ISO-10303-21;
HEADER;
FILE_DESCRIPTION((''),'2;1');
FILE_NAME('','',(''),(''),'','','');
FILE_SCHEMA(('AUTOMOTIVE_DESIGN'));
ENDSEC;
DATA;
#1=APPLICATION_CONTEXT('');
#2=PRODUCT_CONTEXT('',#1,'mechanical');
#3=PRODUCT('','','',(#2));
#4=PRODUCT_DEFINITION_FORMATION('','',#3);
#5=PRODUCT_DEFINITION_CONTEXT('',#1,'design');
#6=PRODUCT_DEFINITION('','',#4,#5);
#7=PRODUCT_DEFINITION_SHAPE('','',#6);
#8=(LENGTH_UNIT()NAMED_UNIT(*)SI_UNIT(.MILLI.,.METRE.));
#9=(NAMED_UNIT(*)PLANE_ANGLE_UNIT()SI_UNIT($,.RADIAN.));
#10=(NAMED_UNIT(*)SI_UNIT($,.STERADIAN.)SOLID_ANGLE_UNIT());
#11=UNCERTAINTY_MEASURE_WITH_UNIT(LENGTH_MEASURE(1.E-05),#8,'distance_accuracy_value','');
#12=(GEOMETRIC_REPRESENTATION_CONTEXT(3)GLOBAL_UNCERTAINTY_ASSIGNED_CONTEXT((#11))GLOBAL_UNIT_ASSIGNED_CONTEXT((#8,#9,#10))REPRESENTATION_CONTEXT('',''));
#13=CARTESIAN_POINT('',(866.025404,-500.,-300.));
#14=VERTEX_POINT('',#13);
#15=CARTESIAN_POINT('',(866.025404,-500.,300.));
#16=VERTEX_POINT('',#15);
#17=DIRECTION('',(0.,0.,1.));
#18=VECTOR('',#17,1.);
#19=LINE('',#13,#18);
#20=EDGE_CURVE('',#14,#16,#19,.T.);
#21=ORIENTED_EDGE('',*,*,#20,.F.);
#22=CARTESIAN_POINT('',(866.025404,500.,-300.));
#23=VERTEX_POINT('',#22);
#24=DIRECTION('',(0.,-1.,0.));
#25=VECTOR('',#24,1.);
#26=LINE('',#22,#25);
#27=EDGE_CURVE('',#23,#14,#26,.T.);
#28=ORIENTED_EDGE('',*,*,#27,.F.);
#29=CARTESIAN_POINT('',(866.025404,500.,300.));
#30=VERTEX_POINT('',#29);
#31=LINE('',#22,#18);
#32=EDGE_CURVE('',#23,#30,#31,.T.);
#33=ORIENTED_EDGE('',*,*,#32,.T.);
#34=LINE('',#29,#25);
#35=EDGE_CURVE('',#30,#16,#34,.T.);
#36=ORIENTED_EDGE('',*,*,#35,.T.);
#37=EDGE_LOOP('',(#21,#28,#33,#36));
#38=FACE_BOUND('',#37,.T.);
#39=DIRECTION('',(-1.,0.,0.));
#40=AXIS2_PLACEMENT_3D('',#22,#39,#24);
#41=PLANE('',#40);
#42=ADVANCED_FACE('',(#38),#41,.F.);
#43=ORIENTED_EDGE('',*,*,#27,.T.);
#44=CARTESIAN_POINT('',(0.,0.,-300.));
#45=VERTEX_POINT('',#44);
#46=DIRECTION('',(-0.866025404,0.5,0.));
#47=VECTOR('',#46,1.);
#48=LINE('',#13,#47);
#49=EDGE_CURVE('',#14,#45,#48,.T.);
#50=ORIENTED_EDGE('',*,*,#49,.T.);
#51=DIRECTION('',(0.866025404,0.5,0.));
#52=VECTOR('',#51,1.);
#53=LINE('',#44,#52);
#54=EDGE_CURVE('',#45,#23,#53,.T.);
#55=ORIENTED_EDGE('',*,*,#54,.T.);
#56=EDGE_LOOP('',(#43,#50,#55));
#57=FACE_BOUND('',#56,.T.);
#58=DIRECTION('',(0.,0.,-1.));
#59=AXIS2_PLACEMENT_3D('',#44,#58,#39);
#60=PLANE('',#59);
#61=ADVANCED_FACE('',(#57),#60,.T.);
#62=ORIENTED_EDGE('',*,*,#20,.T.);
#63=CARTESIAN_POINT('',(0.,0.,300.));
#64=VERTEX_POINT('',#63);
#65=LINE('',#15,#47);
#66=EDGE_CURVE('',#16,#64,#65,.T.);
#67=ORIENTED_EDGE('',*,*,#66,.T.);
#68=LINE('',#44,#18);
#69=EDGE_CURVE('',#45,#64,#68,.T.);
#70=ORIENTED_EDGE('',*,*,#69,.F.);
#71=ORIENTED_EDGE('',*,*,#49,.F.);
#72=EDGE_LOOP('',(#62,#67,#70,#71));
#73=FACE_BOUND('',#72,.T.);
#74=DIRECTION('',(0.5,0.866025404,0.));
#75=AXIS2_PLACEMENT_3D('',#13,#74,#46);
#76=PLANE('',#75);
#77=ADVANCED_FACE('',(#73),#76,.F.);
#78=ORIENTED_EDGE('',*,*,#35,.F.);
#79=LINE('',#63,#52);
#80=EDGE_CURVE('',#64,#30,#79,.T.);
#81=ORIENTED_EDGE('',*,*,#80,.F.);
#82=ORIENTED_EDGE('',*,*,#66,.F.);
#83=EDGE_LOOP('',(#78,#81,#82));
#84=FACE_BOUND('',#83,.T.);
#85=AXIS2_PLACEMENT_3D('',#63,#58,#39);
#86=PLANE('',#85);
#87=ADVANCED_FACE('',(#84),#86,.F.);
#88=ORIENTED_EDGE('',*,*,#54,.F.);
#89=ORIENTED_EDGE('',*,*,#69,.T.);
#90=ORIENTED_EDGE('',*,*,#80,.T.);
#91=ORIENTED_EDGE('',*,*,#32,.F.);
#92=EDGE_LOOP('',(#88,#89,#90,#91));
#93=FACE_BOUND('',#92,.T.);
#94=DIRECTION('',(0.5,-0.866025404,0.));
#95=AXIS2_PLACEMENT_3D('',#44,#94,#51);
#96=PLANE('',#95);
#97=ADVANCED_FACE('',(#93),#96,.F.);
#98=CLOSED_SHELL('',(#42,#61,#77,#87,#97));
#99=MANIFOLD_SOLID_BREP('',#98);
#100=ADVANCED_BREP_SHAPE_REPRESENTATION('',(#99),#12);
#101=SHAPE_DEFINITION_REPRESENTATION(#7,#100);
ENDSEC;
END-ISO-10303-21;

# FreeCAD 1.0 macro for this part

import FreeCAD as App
import Part
import Sketcher
from FreeCAD import Vector
Q = App.Units.Quantity


def add_polygon(sketch, points):
    """Adds a closed chain of lines whose ends are joined by coincident constraints."""
    first, n = sketch.GeometryCount, len(points)
    for a, b in zip(points, points[1:] + points[:1]):
        sketch.addGeometry(Part.LineSegment(App.Vector(*a, 0), App.Vector(*b, 0)), False)
    for i in range(n):
        sketch.addConstraint(Sketcher.Constraint("Coincident", first + i, 2, first + (i + 1) % n, 1))

doc = App.newDocument("Part")
params = doc.addObject("Spreadsheet::Sheet", "Params")
for row, (alias, value) in enumerate([
    ("sketch1_height", "1000 mm"),
    ("pad1_length", "300 mm"),
    ("pad1_length2", "300 mm"),
], start=1):
    params.set(f"A{row}", alias)
    params.set(f"B{row}", "=" + value)
    params.setAlias(f"B{row}", alias)

body = doc.addObject("PartDesign::Body", "Body")

sketch1 = body.newObject("Sketcher::SketchObject", "Sketch")
sketch1.AttachmentSupport = (doc.getObject("XY_Plane"), [""])
sketch1.MapMode = "FlatFace"
add_polygon(sketch1, [(866.025404, 500), (0, 0), (866.025404, -500)])
sketch1.addConstraint([
    Sketcher.Constraint("Vertical", 2),
    Sketcher.Constraint("Coincident", 0, 2, -1, 1),
    Sketcher.Constraint("Equal", 0, 1),
    Sketcher.Constraint("DistanceY", 2, 1, 2, 2, 1000.0),
    Sketcher.Constraint("Angle", 0, Q("-150 deg")),
])
sketch1.setExpression("Constraints[6]", "Params.sketch1_height")
pad1 = body.newObject("PartDesign::Pad", "Pad")
pad1.Profile = sketch1
pad1.Type = "TwoLengths"
pad1.setExpression("Length", "Params.pad1_length")
pad1.setExpression("Length2", "Params.pad1_length2")

doc.recompute()
